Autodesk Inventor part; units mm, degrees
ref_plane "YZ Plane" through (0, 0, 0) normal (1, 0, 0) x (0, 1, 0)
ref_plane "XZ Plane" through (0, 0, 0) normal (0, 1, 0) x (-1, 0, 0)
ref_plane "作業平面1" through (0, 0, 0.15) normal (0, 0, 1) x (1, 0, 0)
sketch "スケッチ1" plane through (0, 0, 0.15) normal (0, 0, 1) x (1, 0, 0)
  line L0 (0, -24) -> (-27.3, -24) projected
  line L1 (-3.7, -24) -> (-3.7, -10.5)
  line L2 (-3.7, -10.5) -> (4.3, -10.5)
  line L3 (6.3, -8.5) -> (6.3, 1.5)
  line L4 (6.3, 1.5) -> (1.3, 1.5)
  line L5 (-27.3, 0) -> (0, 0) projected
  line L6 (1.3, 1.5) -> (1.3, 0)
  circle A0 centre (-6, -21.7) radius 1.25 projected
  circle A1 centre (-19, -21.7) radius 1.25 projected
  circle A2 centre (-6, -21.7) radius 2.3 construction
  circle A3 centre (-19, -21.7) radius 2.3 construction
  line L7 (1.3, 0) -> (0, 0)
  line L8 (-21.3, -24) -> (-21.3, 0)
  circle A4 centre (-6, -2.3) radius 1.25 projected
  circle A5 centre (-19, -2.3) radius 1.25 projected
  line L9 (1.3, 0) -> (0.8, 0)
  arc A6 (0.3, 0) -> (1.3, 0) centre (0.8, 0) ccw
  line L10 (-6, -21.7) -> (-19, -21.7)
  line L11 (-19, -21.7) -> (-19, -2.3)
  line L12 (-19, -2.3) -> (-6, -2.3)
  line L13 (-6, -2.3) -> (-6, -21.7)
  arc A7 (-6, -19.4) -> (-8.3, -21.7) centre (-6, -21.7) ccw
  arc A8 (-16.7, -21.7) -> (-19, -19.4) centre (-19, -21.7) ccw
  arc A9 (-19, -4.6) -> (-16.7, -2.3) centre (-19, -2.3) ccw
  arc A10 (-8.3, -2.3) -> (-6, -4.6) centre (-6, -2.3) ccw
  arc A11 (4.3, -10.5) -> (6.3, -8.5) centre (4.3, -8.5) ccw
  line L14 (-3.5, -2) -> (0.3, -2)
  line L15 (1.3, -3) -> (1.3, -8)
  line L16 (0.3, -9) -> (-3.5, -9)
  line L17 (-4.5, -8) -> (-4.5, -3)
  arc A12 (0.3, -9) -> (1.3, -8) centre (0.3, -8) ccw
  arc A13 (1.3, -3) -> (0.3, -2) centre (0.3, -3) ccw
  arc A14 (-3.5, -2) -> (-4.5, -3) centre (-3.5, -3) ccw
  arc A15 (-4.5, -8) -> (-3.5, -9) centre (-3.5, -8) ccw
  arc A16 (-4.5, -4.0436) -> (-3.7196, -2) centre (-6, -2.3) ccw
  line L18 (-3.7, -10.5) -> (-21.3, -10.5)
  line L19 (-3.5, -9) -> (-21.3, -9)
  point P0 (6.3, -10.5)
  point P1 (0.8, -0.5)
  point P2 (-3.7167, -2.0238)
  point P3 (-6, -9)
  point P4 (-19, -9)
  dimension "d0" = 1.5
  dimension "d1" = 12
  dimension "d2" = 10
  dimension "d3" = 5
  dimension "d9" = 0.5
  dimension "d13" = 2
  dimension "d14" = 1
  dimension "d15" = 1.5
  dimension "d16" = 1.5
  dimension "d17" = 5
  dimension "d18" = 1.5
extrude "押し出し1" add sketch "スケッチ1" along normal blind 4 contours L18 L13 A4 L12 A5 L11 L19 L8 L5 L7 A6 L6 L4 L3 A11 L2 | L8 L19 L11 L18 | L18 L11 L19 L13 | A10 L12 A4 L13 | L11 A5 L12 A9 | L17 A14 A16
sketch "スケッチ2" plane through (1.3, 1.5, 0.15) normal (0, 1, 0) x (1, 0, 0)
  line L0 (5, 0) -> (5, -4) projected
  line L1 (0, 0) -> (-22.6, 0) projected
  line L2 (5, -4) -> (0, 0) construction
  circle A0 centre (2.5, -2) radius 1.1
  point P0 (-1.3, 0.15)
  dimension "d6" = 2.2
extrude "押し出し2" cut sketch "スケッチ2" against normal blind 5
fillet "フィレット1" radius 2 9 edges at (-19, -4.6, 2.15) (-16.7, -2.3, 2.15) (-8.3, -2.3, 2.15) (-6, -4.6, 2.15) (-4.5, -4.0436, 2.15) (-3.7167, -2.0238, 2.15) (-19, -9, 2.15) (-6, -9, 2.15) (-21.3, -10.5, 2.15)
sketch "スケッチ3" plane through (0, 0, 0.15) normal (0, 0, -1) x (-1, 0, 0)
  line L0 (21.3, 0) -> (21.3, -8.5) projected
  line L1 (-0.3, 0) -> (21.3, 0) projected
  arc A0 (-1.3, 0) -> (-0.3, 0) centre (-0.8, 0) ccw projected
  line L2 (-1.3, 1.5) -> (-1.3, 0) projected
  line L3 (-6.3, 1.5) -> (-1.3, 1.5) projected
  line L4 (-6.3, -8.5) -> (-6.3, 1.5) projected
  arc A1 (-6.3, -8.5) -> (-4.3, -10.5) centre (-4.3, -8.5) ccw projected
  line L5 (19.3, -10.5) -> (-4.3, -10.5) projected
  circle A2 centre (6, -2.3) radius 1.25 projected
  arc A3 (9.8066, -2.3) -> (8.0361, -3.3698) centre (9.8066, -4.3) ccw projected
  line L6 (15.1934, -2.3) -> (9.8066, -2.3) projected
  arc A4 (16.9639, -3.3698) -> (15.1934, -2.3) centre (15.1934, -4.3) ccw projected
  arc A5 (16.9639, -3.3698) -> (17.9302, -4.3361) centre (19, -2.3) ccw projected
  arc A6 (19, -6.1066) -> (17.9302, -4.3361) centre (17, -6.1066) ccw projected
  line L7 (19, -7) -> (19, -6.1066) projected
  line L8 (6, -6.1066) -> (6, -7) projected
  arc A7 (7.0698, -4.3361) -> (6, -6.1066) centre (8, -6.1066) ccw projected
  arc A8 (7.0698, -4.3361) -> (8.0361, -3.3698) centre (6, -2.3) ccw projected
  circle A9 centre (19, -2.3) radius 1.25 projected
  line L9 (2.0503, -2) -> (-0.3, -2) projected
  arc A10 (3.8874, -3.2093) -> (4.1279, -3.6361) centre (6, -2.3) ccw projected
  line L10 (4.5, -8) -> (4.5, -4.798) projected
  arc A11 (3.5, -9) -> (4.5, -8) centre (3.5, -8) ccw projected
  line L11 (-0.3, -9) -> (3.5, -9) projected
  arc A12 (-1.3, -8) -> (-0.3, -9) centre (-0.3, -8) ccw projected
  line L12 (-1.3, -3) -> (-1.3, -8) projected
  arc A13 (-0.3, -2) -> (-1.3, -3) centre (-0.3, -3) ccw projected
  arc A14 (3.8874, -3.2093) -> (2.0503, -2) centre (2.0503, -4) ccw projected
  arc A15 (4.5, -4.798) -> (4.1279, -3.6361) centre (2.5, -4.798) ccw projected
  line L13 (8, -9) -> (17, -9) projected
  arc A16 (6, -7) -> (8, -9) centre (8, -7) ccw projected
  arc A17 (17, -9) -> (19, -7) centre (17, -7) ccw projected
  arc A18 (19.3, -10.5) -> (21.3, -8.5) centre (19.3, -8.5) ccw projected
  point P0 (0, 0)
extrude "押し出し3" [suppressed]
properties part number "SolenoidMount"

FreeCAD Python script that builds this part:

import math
import FreeCAD as App
import Part
import Sketcher

V = App.Vector
Q = App.Units.Quantity


def edges_at(feature, points):
    """Names of the edges that pass closest to the given points."""
    edges = feature.Shape.Edges
    near = lambda p: min(range(len(edges)), key=lambda i: edges[i].distToShape(Part.Vertex(*p))[0])
    return sorted({f"Edge{near(p) + 1}" for p in points})

doc = App.newDocument("Part")
body = doc.addObject("PartDesign::Body", "Body")

sketch1 = body.newObject("Sketcher::SketchObject", "Sketch")
sketch1.AttachmentSupport = (doc.getObject("XY_Plane"), [""])
sketch1.MapMode = "FlatFace"
sketch1.AttachmentOffset = App.Placement(V(0, 0, 0.15), App.Rotation())
sketch1.addGeometry([
    Part.ArcOfCircle(Part.Circle(V(4.3, -8.5, 0), V(0, 0, 1), 2), math.radians(-90), math.radians(0)),
    Part.LineSegment(V(6.3, -8.5, 0), V(6.3, 1.5, 0)),
    Part.LineSegment(V(6.3, 1.5, 0), V(1.3, 1.5, 0)),
    Part.LineSegment(V(1.3, 1.5, 0), V(1.3, 0, 0)),
    Part.ArcOfCircle(Part.Circle(V(0.8, 0, 0), V(0, 0, 1), 0.5), math.radians(180), math.radians(360)),
    Part.LineSegment(V(0.3, 0, 0), V(-21.3, 0, 0)),
    Part.LineSegment(V(-21.3, 0, 0), V(-21.3, -10.5, 0)),
    Part.LineSegment(V(-21.3, -10.5, 0), V(4.3, -10.5, 0)),
    Part.LineSegment(V(-6, -4.6, 0), V(-6, -9, 0)),
    Part.LineSegment(V(-6, -9, 0), V(-19, -9, 0)),
    Part.LineSegment(V(-19, -9, 0), V(-19, -4.6, 0)),
    Part.ArcOfCircle(Part.Circle(V(-19, -2.3, 0), V(0, 0, 1), 2.3), math.radians(-90), math.radians(0)),
    Part.LineSegment(V(-16.7, -2.3, 0), V(-8.3, -2.3, 0)),
    Part.ArcOfCircle(Part.Circle(V(-6, -2.3, 0), V(0, 0, 1), 2.3), math.radians(180), math.radians(270)),
    Part.Circle(V(-6, -2.3, 0), V(0, 0, 1), 1.25),
    Part.Circle(V(-19, -2.3, 0), V(0, 0, 1), 1.25),
    Part.LineSegment(V(0.3, -9, 0), V(-3.5, -9, 0)),
    Part.ArcOfCircle(Part.Circle(V(-3.5, -8, 0), V(0, 0, 1), 1), math.radians(180), math.radians(270)),
    Part.LineSegment(V(-4.5, -8, 0), V(-4.5, -4.04, 0)),
    Part.ArcOfCircle(Part.Circle(V(-6, -2.3, 0), V(0, 0, 1), 2.3), math.radians(-49), math.radians(7)),
    Part.ArcOfCircle(Part.Circle(V(-3.5, -3, 0), V(0, 0, 1), 1), math.radians(90), math.radians(102.51)),
    Part.LineSegment(V(-3.5, -2, 0), V(0.3, -2, 0)),
    Part.ArcOfCircle(Part.Circle(V(0.3, -3, 0), V(0, 0, 1), 1), math.radians(0), math.radians(90)),
    Part.LineSegment(V(1.3, -3, 0), V(1.3, -8, 0)),
    Part.ArcOfCircle(Part.Circle(V(0.3, -8, 0), V(0, 0, 1), 1), math.radians(-90), math.radians(0)),
], False)
sketch1.addConstraint([
    Sketcher.Constraint("Tangent", 0, 2, 1, 1),
    Sketcher.Constraint("Coincident", 1, 2, 2, 1),
    Sketcher.Constraint("Coincident", 2, 2, 3, 1),
    Sketcher.Constraint("Tangent", 3, 2, 4, 2),
    Sketcher.Constraint("Coincident", 4, 1, 5, 1),
    Sketcher.Constraint("Coincident", 5, 2, 6, 1),
    Sketcher.Constraint("Coincident", 6, 2, 7, 1),
    Sketcher.Constraint("Tangent", 7, 2, 0, 1),
    Sketcher.Constraint("Coincident", 8, 2, 9, 1),
    Sketcher.Constraint("Coincident", 9, 2, 10, 1),
    Sketcher.Constraint("Coincident", 10, 2, 11, 1),
    Sketcher.Constraint("Coincident", 11, 2, 12, 1),
    Sketcher.Constraint("Coincident", 12, 2, 13, 1),
    Sketcher.Constraint("Coincident", 13, 2, 8, 1),
    Sketcher.Constraint("Tangent", 16, 2, 17, 2),
    Sketcher.Constraint("Tangent", 17, 1, 18, 1),
    Sketcher.Constraint("Coincident", 18, 2, 19, 1),
    Sketcher.Constraint("Coincident", 19, 2, 20, 2),
    Sketcher.Constraint("Tangent", 20, 1, 21, 1),
    Sketcher.Constraint("Tangent", 21, 2, 22, 2),
    Sketcher.Constraint("Tangent", 22, 1, 23, 1),
    Sketcher.Constraint("Tangent", 23, 2, 24, 2),
    Sketcher.Constraint("Tangent", 24, 1, 16, 1),
    Sketcher.Constraint("Vertical", 1),
    Sketcher.Constraint("Horizontal", 2),
    Sketcher.Constraint("Vertical", 3),
    Sketcher.Constraint("Horizontal", 5),
    Sketcher.Constraint("Vertical", 6),
    Sketcher.Constraint("Horizontal", 7),
    Sketcher.Constraint("Vertical", 8),
    Sketcher.Constraint("Horizontal", 9),
    Sketcher.Constraint("Vertical", 10),
    Sketcher.Constraint("Horizontal", 12),
    Sketcher.Constraint("Horizontal", 16),
    Sketcher.Constraint("Vertical", 18),
    Sketcher.Constraint("Horizontal", 21),
    Sketcher.Constraint("Vertical", 23),
    Sketcher.Constraint("Coincident", 14, 3, 13, 3),
    Sketcher.Constraint("Coincident", 15, 3, 11, 3),
    Sketcher.Constraint("Coincident", 19, 3, 13, 3),
    Sketcher.Constraint("Equal", 11, 13),
    Sketcher.Constraint("Equal", 14, 15),
    Sketcher.Constraint("Equal", 13, 19),
    Sketcher.Constraint("Equal", 17, 20),
    Sketcher.Constraint("Equal", 20, 22),
    Sketcher.Constraint("Equal", 22, 24),
    Sketcher.Constraint("PointOnObject", 4, 3, -1),
    Sketcher.Constraint("PointOnObject", 4, 1, -1),
    Sketcher.Constraint("Horizontal", 11, 3, 13, 3),
    Sketcher.Constraint("Horizontal", 19, 3, 11, 2),
    Sketcher.Constraint("Horizontal", 9, 2, 16, 2),
    Sketcher.Constraint("Vertical", 17, 3, 20, 3),
    Sketcher.Constraint("Vertical", 24, 3, 4, 1),
    Sketcher.Constraint("Vertical", 19, 3, 8, 2),
    Sketcher.Constraint("Vertical", 15, 3, 9, 2),
    Sketcher.Constraint("Vertical", 3, 2, 22, 1),
    Sketcher.Constraint("Equal", 2, 23),
    Sketcher.Constraint("Radius", 0, Q("2 mm")),
    Sketcher.Constraint("Radius", 17, Q("1 mm")),
    Sketcher.Constraint("DistanceX", 2, 2, 2, 1, Q("5 mm")),
    Sketcher.Constraint("DistanceY", 1, 1, 1, 2, Q("10 mm")),
    Sketcher.Constraint("DistanceY", 3, 2, 3, 1, Q("1.5 mm")),
    Sketcher.Constraint("DistanceY", 20, 1, -1, 1, Q("2 mm")),
    Sketcher.Constraint("Diameter", 14, Q("2.5 mm")),
    Sketcher.Constraint("Radius", 11, Q("2.3 mm")),
    Sketcher.Constraint("DistanceX", 8, 2, 17, 1, Q("1.5 mm")),
    Sketcher.Constraint("DistanceX", 9, 2, 9, 1, Q("13 mm")),
    Sketcher.Constraint("DistanceX", 5, 2, 5, 1, Q("21.6 mm")),
    Sketcher.Constraint("DistanceX", 16, 2, 16, 1, Q("3.8 mm")),
    Sketcher.Constraint("DistanceY", 8, 2, 8, 1, Q("4.4 mm")),
    Sketcher.Constraint("DistanceX", 11, 3, -1, 1, Q("19 mm")),
])
pad1 = body.newObject("PartDesign::Pad", "Pad")
pad1.Profile = sketch1
pad1.Length = 4

sketch2 = body.newObject("Sketcher::SketchObject", "Sketch001")
sketch2.AttachmentSupport = (doc.getObject("XZ_Plane"), [""])
sketch2.MapMode = "FlatFace"
sketch2.AttachmentOffset = App.Placement(V(0, 0, -1.5), App.Rotation())
sketch2.addGeometry(Part.Circle(V(3.8, 2.1, 0), V(0, 0, 1), 1.1), False)
sketch2.addConstraint([
    Sketcher.Constraint("Diameter", 0, Q("2.2 mm")),
    Sketcher.Constraint("DistanceX", -1, 1, 0, 3, Q("3.8 mm")),
    Sketcher.Constraint("DistanceY", -1, 1, 0, 3, Q("2.15 mm")),
])
pocket1 = body.newObject("PartDesign::Pocket", "Pocket")
pocket1.Profile = sketch2
pocket1.Length = 5
pocket1.Reversed = True
doc.recompute()

fillet = body.newObject("PartDesign::Fillet", "Fillet")
fillet.Base = (pocket1, edges_at(pocket1, [
    (-19, -4.6, 2.15),
    (-16.7, -2.3, 2.15),
    (-8.3, -2.3, 2.15),
    (-6, -4.6, 2.15),
    (-4.5, -4.044, 2.15),
    (-3.717, -2.024, 2.15),
    (-19, -9, 2.15),
    (-6, -9, 2.15),
    (-21.3, -10.5, 2.15),
]))
fillet.Radius = 2

doc.recompute()
